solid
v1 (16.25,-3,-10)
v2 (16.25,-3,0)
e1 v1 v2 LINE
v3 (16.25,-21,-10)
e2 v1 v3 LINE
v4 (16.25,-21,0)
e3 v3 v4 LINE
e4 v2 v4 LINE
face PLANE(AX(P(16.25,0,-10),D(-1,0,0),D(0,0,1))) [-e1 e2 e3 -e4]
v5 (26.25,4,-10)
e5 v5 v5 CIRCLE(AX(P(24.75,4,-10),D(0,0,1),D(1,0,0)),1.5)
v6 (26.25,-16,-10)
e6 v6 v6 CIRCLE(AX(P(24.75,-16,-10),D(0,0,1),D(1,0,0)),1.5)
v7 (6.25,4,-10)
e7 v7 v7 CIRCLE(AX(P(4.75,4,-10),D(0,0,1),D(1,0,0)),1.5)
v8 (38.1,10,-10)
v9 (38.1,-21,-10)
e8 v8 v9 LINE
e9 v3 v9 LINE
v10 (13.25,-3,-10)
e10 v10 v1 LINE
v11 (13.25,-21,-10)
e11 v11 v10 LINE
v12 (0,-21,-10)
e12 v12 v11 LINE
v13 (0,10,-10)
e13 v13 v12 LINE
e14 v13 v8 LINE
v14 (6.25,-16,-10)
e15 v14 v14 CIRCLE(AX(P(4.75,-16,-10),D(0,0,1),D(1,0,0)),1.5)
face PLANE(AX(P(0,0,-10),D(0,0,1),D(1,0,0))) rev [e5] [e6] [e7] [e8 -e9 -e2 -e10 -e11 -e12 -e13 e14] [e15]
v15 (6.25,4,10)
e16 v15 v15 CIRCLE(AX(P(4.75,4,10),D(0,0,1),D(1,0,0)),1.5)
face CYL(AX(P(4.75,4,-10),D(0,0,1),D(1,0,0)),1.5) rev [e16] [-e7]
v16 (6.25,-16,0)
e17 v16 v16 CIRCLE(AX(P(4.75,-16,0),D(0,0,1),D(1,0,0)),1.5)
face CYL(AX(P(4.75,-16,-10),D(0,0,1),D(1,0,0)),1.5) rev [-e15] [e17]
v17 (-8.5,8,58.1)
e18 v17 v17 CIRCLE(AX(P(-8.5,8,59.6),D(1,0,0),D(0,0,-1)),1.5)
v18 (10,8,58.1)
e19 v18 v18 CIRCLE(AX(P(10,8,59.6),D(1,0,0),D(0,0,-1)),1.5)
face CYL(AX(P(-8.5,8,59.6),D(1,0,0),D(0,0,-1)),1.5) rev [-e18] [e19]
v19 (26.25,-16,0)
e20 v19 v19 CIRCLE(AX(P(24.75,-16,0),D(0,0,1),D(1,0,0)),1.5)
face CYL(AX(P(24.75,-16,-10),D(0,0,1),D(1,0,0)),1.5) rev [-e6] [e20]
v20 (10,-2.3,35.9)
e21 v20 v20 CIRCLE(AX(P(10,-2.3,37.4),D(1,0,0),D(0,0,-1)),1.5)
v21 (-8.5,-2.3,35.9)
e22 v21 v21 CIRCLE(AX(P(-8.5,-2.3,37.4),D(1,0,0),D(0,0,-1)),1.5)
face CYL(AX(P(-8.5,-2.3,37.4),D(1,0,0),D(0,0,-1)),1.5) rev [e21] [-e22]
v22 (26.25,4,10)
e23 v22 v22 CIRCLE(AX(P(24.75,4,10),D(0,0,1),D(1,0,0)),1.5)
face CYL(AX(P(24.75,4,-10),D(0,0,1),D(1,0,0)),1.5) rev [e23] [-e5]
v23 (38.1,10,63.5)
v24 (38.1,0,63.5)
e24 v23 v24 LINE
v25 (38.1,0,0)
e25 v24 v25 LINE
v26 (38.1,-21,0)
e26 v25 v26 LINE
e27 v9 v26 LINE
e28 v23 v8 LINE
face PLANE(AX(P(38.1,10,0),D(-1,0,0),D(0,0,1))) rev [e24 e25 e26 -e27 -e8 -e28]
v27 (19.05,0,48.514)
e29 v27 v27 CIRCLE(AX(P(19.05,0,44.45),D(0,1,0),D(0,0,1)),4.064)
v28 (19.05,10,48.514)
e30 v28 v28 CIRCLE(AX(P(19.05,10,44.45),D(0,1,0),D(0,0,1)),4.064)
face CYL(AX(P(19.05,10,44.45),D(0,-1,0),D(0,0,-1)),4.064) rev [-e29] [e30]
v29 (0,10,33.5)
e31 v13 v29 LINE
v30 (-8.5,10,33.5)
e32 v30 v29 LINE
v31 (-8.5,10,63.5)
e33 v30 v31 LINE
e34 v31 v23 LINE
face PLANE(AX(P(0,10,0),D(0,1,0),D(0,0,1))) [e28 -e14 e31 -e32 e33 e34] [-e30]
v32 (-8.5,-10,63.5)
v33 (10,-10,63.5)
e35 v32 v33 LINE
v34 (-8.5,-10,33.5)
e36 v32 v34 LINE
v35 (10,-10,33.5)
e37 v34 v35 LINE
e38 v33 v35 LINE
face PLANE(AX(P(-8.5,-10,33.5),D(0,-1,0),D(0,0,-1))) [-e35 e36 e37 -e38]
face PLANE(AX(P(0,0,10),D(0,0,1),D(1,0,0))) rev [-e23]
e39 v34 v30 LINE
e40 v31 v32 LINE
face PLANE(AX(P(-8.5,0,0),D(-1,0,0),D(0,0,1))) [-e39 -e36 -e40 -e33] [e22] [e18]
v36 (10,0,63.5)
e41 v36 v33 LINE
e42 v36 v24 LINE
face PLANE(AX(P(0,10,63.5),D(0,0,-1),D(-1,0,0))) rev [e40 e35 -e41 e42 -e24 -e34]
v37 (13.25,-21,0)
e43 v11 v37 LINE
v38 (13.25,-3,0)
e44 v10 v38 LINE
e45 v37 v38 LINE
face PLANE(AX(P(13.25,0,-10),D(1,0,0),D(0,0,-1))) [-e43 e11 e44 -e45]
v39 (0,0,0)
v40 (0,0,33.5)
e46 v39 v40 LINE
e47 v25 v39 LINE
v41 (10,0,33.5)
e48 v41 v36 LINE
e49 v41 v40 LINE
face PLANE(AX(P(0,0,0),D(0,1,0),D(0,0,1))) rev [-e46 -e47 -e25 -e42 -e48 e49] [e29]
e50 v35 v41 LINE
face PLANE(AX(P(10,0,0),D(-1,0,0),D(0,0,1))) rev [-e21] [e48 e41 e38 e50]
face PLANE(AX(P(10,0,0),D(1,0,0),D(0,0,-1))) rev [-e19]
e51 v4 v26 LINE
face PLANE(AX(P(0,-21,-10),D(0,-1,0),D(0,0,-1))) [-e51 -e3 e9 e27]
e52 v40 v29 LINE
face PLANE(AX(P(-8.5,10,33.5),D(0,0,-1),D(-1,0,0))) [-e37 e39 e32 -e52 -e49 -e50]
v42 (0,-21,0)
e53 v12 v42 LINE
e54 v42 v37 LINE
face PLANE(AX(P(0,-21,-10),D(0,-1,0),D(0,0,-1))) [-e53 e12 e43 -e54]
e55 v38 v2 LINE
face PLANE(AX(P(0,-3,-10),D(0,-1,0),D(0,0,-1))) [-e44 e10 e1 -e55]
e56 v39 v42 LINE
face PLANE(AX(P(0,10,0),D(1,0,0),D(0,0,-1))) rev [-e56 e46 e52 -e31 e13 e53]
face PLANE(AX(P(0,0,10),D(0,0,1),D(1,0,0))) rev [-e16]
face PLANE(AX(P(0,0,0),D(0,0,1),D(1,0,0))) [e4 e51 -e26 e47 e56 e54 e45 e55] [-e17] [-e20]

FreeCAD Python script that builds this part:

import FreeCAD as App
import Part
import Sketcher
from FreeCAD import Vector
Q = App.Units.Quantity

doc = App.newDocument("Part")
body = doc.addObject("PartDesign::Body", "Body")

# Sketch on XZ plane
sketch1 = body.newObject("Sketcher::SketchObject", "Sketch")
sketch1.AttachmentSupport = (doc.getObject("XZ_Plane"), [""])
sketch1.MapMode = "FlatFace"
sketch1.addGeometry(Part.LineSegment(Vector(0, 0, 0), Vector(0, 63.5, 0)), False)
sketch1.addGeometry(Part.LineSegment(Vector(0, 63.5, 0), Vector(38.1, 63.5, 0)), False)
sketch1.addGeometry(Part.LineSegment(Vector(38.1, 63.5, 0), Vector(38.1, 0, 0)), False)
sketch1.addGeometry(Part.LineSegment(Vector(38.1, 0, 0), Vector(0, 0, 0)), False)
sketch1.addGeometry(Part.Circle(Vector(19.1, 44.5, 0), Vector(0, 0, 1), 4.1), False)
sketch1.addConstraint(Sketcher.Constraint("Coincident", 0, 2, 1, 1))
sketch1.addConstraint(Sketcher.Constraint("Coincident", 1, 2, 2, 1))
sketch1.addConstraint(Sketcher.Constraint("Coincident", 2, 2, 3, 1))
sketch1.addConstraint(Sketcher.Constraint("Coincident", 3, 2, 0, 1))
sketch1.addConstraint(Sketcher.Constraint("Vertical", 0))
sketch1.addConstraint(Sketcher.Constraint("Horizontal", 1))
sketch1.addConstraint(Sketcher.Constraint("Vertical", 2))
sketch1.addConstraint(Sketcher.Constraint("Horizontal", 3))
sketch1.addConstraint(Sketcher.Constraint("Coincident", 3, 2, -1, 1))
sketch1.addConstraint(Sketcher.Constraint("Diameter", 4, Q("8.128 mm")))
sketch1.addConstraint(Sketcher.Constraint("DistanceX", 1, 1, 1, 2, Q("38.1 mm")))
sketch1.addConstraint(Sketcher.Constraint("DistanceY", 0, 1, 0, 2, Q("63.5 mm")))
sketch1.addConstraint(Sketcher.Constraint("DistanceX", -1, 1, 4, 3, Q("19.05 mm")))
sketch1.addConstraint(Sketcher.Constraint("DistanceY", -1, 1, 4, 3, Q("44.45 mm")))
pad1 = body.newObject("PartDesign::Pad", "Pad")
pad1.Profile = sketch1
pad1.Length = 10
pad1.Reversed = True

# Sketch on YZ plane
sketch2 = body.newObject("Sketcher::SketchObject", "Sketch001")
sketch2.AttachmentSupport = (doc.getObject("YZ_Plane"), [""])
sketch2.MapMode = "FlatFace"
sketch2.addGeometry(Part.LineSegment(Vector(-10, 33.5, 0), Vector(10, 33.5, 0)), False)
sketch2.addGeometry(Part.LineSegment(Vector(10, 33.5, 0), Vector(10, 63.5, 0)), False)
sketch2.addGeometry(Part.LineSegment(Vector(10, 63.5, 0), Vector(-10, 63.5, 0)), False)
sketch2.addGeometry(Part.LineSegment(Vector(-10, 63.5, 0), Vector(-10, 33.5, 0)), False)
sketch2.addGeometry(Part.Circle(Vector(-2.3, 37.4, 0), Vector(0, 0, 1), 1.5), False)
sketch2.addGeometry(Part.Circle(Vector(8, 59.6, 0), Vector(0, 0, 1), 1.5), False)
sketch2.addConstraint(Sketcher.Constraint("Coincident", 0, 2, 1, 1))
sketch2.addConstraint(Sketcher.Constraint("Coincident", 1, 2, 2, 1))
sketch2.addConstraint(Sketcher.Constraint("Coincident", 2, 2, 3, 1))
sketch2.addConstraint(Sketcher.Constraint("Coincident", 3, 2, 0, 1))
sketch2.addConstraint(Sketcher.Constraint("Horizontal", 0))
sketch2.addConstraint(Sketcher.Constraint("Vertical", 1))
sketch2.addConstraint(Sketcher.Constraint("Horizontal", 2))
sketch2.addConstraint(Sketcher.Constraint("Vertical", 3))
sketch2.addConstraint(Sketcher.Constraint("Equal", 4, 5))
sketch2.addConstraint(Sketcher.Constraint("Diameter", 4, Q("3 mm")))
sketch2.addConstraint(Sketcher.Constraint("DistanceX", 0, 1, 0, 2, Q("20 mm")))
sketch2.addConstraint(Sketcher.Constraint("DistanceY", 1, 1, 1, 2, Q("30 mm")))
sketch2.addConstraint(Sketcher.Constraint("DistanceX", -1, 1, 5, 3, Q("8 mm")))
sketch2.addConstraint(Sketcher.Constraint("DistanceX", -1, 1, 0, 2, Q("10 mm")))
sketch2.addConstraint(Sketcher.Constraint("DistanceX", 4, 3, -1, 1, Q("2.3 mm")))
sketch2.addConstraint(Sketcher.Constraint("DistanceY", -1, 1, 4, 3, Q("37.4 mm")))
sketch2.addConstraint(Sketcher.Constraint("DistanceY", -1, 1, 5, 3, Q("59.6 mm")))
sketch2.addConstraint(Sketcher.Constraint("DistanceY", -1, 1, 0, 2, Q("33.5 mm")))
pad2 = body.newObject("PartDesign::Pad", "Pad001")
pad2.Profile = sketch2
pad2.Type = "TwoLengths"
pad2.Length = 10
pad2.Length2 = 8.5

# Sketch on XY plane
sketch3 = body.newObject("Sketcher::SketchObject", "Sketch002")
sketch3.AttachmentSupport = (doc.getObject("XY_Plane"), [""])
sketch3.MapMode = "FlatFace"
sketch3.addGeometry(Part.LineSegment(Vector(13.2, -21, 0), Vector(13.2, -3, 0)), False)
sketch3.addGeometry(Part.LineSegment(Vector(13.2, -3, 0), Vector(16.2, -3, 0)), False)
sketch3.addGeometry(Part.LineSegment(Vector(16.2, -3, 0), Vector(16.2, -21, 0)), False)
sketch3.addGeometry(Part.LineSegment(Vector(16.2, -21, 0), Vector(38.1, -21, 0)), False)
sketch3.addGeometry(Part.LineSegment(Vector(38.1, -21, 0), Vector(38.1, 10, 0)), False)
sketch3.addGeometry(Part.LineSegment(Vector(38.1, 10, 0), Vector(0, 10, 0)), False)
sketch3.addGeometry(Part.LineSegment(Vector(0, 10, 0), Vector(0, -21, 0)), False)
sketch3.addGeometry(Part.LineSegment(Vector(0, -21, 0), Vector(13.2, -21, 0)), False)
sketch3.addGeometry(Part.Circle(Vector(4.8, -16, 0), Vector(0, 0, 1), 1.5), False)
sketch3.addGeometry(Part.Circle(Vector(24.8, -16, 0), Vector(0, 0, 1), 1.5), False)
sketch3.addGeometry(Part.Circle(Vector(4.8, 4, 0), Vector(0, 0, 1), 1.5), False)
sketch3.addGeometry(Part.Circle(Vector(24.8, 4, 0), Vector(0, 0, 1), 1.5), False)
sketch3.addConstraint(Sketcher.Constraint("Coincident", 0, 2, 1, 1))
sketch3.addConstraint(Sketcher.Constraint("Coincident", 1, 2, 2, 1))
sketch3.addConstraint(Sketcher.Constraint("Coincident", 2, 2, 3, 1))
sketch3.addConstraint(Sketcher.Constraint("Coincident", 3, 2, 4, 1))
sketch3.addConstraint(Sketcher.Constraint("Coincident", 4, 2, 5, 1))
sketch3.addConstraint(Sketcher.Constraint("Coincident", 5, 2, 6, 1))
sketch3.addConstraint(Sketcher.Constraint("Coincident", 6, 2, 7, 1))
sketch3.addConstraint(Sketcher.Constraint("Coincident", 7, 2, 0, 1))
sketch3.addConstraint(Sketcher.Constraint("Vertical", 0))
sketch3.addConstraint(Sketcher.Constraint("Horizontal", 1))
sketch3.addConstraint(Sketcher.Constraint("Vertical", 2))
sketch3.addConstraint(Sketcher.Constraint("Horizontal", 3))
sketch3.addConstraint(Sketcher.Constraint("Vertical", 4))
sketch3.addConstraint(Sketcher.Constraint("Horizontal", 5))
sketch3.addConstraint(Sketcher.Constraint("Vertical", 6))
sketch3.addConstraint(Sketcher.Constraint("Horizontal", 7))
sketch3.addConstraint(Sketcher.Constraint("Equal", 8, 9))
sketch3.addConstraint(Sketcher.Constraint("Equal", 9, 10))
sketch3.addConstraint(Sketcher.Constraint("Equal", 10, 11))
sketch3.addConstraint(Sketcher.Constraint("PointOnObject", 5, 2, -2))
sketch3.addConstraint(Sketcher.Constraint("Horizontal", 8, 3, 9, 3))
sketch3.addConstraint(Sketcher.Constraint("Horizontal", 10, 3, 11, 3))
sketch3.addConstraint(Sketcher.Constraint("Horizontal", 3, 2, 6, 2))
sketch3.addConstraint(Sketcher.Constraint("Vertical", 8, 3, 10, 3))
sketch3.addConstraint(Sketcher.Constraint("Vertical", 9, 3, 11, 3))
sketch3.addConstraint(Sketcher.Constraint("Diameter", 8, Q("3 mm")))
sketch3.addConstraint(Sketcher.Constraint("DistanceX", 1, 1, 1, 2, Q("3 mm")))
sketch3.addConstraint(Sketcher.Constraint("DistanceY", 0, 1, 0, 2, Q("18 mm")))
sketch3.addConstraint(Sketcher.Constraint("DistanceY", 4, 1, 4, 2, Q("31 mm")))
sketch3.addConstraint(Sketcher.Constraint("DistanceX", 5, 2, 5, 1, Q("38.1 mm")))
sketch3.addConstraint(Sketcher.Constraint("DistanceY", 8, 3, -1, 1, Q("16 mm")))
sketch3.addConstraint(Sketcher.Constraint("DistanceY", -1, 1, 10, 3, Q("4 mm")))
sketch3.addConstraint(Sketcher.Constraint("DistanceY", 0, 2, -1, 1, Q("3 mm")))
sketch3.addConstraint(Sketcher.Constraint("DistanceX", 8, 3, 9, 3, Q("20 mm")))
sketch3.addConstraint(Sketcher.Constraint("DistanceX", 3, 1, 3, 2, Q("21.85 mm")))
sketch3.addConstraint(Sketcher.Constraint("DistanceX", 10, 3, 0, 2, Q("8.5 mm")))
pad3 = body.newObject("PartDesign::Pad", "Pad002")
pad3.Profile = sketch3
pad3.Length = 10
pad3.Reversed = True

# Sketch on YZ plane
sketch4 = body.newObject("Sketcher::SketchObject", "Sketch003")
sketch4.AttachmentSupport = (doc.getObject("YZ_Plane"), [""])
sketch4.MapMode = "FlatFace"
sketch4.addGeometry(Part.Circle(Vector(8, 59.6, 0), Vector(0, 0, 1), 1.5), False)
sketch4.addConstraint(Sketcher.Constraint("Diameter", 0, Q("3 mm")))
sketch4.addConstraint(Sketcher.Constraint("DistanceX", -1, 1, 0, 3, Q("8 mm")))
sketch4.addConstraint(Sketcher.Constraint("DistanceY", -1, 1, 0, 3, Q("59.6 mm")))
pocket1 = body.newObject("PartDesign::Pocket", "Pocket")
pocket1.Profile = sketch4
pocket1.Length = 10
pocket1.Reversed = True

# Sketch on XY plane
sketch5 = body.newObject("Sketcher::SketchObject", "Sketch004")
sketch5.AttachmentSupport = (doc.getObject("XY_Plane"), [""])
sketch5.MapMode = "FlatFace"
sketch5.AttachmentOffset = App.Placement(Vector(0, 0, 10), App.Rotation())
sketch5.addGeometry(Part.Circle(Vector(24.8, 4, 0), Vector(0, 0, 1), 1.5), False)
sketch5.addGeometry(Part.Circle(Vector(4.8, 4, 0), Vector(0, 0, 1), 1.5), False)
sketch5.addConstraint(Sketcher.Constraint("Equal", 0, 1))
sketch5.addConstraint(Sketcher.Constraint("Horizontal", 0, 3, 1, 3))
sketch5.addConstraint(Sketcher.Constraint("Diameter", 0, Q("3 mm")))
sketch5.addConstraint(Sketcher.Constraint("DistanceY", -1, 1, 0, 3, Q("4 mm")))
sketch5.addConstraint(Sketcher.Constraint("DistanceX", 1, 3, 0, 3, Q("20 mm")))
sketch5.addConstraint(Sketcher.Constraint("DistanceX", -1, 1, 0, 3, Q("24.75 mm")))
pocket2 = body.newObject("PartDesign::Pocket", "Pocket001")
pocket2.Profile = sketch5
pocket2.Length = 10

doc.recompute()
